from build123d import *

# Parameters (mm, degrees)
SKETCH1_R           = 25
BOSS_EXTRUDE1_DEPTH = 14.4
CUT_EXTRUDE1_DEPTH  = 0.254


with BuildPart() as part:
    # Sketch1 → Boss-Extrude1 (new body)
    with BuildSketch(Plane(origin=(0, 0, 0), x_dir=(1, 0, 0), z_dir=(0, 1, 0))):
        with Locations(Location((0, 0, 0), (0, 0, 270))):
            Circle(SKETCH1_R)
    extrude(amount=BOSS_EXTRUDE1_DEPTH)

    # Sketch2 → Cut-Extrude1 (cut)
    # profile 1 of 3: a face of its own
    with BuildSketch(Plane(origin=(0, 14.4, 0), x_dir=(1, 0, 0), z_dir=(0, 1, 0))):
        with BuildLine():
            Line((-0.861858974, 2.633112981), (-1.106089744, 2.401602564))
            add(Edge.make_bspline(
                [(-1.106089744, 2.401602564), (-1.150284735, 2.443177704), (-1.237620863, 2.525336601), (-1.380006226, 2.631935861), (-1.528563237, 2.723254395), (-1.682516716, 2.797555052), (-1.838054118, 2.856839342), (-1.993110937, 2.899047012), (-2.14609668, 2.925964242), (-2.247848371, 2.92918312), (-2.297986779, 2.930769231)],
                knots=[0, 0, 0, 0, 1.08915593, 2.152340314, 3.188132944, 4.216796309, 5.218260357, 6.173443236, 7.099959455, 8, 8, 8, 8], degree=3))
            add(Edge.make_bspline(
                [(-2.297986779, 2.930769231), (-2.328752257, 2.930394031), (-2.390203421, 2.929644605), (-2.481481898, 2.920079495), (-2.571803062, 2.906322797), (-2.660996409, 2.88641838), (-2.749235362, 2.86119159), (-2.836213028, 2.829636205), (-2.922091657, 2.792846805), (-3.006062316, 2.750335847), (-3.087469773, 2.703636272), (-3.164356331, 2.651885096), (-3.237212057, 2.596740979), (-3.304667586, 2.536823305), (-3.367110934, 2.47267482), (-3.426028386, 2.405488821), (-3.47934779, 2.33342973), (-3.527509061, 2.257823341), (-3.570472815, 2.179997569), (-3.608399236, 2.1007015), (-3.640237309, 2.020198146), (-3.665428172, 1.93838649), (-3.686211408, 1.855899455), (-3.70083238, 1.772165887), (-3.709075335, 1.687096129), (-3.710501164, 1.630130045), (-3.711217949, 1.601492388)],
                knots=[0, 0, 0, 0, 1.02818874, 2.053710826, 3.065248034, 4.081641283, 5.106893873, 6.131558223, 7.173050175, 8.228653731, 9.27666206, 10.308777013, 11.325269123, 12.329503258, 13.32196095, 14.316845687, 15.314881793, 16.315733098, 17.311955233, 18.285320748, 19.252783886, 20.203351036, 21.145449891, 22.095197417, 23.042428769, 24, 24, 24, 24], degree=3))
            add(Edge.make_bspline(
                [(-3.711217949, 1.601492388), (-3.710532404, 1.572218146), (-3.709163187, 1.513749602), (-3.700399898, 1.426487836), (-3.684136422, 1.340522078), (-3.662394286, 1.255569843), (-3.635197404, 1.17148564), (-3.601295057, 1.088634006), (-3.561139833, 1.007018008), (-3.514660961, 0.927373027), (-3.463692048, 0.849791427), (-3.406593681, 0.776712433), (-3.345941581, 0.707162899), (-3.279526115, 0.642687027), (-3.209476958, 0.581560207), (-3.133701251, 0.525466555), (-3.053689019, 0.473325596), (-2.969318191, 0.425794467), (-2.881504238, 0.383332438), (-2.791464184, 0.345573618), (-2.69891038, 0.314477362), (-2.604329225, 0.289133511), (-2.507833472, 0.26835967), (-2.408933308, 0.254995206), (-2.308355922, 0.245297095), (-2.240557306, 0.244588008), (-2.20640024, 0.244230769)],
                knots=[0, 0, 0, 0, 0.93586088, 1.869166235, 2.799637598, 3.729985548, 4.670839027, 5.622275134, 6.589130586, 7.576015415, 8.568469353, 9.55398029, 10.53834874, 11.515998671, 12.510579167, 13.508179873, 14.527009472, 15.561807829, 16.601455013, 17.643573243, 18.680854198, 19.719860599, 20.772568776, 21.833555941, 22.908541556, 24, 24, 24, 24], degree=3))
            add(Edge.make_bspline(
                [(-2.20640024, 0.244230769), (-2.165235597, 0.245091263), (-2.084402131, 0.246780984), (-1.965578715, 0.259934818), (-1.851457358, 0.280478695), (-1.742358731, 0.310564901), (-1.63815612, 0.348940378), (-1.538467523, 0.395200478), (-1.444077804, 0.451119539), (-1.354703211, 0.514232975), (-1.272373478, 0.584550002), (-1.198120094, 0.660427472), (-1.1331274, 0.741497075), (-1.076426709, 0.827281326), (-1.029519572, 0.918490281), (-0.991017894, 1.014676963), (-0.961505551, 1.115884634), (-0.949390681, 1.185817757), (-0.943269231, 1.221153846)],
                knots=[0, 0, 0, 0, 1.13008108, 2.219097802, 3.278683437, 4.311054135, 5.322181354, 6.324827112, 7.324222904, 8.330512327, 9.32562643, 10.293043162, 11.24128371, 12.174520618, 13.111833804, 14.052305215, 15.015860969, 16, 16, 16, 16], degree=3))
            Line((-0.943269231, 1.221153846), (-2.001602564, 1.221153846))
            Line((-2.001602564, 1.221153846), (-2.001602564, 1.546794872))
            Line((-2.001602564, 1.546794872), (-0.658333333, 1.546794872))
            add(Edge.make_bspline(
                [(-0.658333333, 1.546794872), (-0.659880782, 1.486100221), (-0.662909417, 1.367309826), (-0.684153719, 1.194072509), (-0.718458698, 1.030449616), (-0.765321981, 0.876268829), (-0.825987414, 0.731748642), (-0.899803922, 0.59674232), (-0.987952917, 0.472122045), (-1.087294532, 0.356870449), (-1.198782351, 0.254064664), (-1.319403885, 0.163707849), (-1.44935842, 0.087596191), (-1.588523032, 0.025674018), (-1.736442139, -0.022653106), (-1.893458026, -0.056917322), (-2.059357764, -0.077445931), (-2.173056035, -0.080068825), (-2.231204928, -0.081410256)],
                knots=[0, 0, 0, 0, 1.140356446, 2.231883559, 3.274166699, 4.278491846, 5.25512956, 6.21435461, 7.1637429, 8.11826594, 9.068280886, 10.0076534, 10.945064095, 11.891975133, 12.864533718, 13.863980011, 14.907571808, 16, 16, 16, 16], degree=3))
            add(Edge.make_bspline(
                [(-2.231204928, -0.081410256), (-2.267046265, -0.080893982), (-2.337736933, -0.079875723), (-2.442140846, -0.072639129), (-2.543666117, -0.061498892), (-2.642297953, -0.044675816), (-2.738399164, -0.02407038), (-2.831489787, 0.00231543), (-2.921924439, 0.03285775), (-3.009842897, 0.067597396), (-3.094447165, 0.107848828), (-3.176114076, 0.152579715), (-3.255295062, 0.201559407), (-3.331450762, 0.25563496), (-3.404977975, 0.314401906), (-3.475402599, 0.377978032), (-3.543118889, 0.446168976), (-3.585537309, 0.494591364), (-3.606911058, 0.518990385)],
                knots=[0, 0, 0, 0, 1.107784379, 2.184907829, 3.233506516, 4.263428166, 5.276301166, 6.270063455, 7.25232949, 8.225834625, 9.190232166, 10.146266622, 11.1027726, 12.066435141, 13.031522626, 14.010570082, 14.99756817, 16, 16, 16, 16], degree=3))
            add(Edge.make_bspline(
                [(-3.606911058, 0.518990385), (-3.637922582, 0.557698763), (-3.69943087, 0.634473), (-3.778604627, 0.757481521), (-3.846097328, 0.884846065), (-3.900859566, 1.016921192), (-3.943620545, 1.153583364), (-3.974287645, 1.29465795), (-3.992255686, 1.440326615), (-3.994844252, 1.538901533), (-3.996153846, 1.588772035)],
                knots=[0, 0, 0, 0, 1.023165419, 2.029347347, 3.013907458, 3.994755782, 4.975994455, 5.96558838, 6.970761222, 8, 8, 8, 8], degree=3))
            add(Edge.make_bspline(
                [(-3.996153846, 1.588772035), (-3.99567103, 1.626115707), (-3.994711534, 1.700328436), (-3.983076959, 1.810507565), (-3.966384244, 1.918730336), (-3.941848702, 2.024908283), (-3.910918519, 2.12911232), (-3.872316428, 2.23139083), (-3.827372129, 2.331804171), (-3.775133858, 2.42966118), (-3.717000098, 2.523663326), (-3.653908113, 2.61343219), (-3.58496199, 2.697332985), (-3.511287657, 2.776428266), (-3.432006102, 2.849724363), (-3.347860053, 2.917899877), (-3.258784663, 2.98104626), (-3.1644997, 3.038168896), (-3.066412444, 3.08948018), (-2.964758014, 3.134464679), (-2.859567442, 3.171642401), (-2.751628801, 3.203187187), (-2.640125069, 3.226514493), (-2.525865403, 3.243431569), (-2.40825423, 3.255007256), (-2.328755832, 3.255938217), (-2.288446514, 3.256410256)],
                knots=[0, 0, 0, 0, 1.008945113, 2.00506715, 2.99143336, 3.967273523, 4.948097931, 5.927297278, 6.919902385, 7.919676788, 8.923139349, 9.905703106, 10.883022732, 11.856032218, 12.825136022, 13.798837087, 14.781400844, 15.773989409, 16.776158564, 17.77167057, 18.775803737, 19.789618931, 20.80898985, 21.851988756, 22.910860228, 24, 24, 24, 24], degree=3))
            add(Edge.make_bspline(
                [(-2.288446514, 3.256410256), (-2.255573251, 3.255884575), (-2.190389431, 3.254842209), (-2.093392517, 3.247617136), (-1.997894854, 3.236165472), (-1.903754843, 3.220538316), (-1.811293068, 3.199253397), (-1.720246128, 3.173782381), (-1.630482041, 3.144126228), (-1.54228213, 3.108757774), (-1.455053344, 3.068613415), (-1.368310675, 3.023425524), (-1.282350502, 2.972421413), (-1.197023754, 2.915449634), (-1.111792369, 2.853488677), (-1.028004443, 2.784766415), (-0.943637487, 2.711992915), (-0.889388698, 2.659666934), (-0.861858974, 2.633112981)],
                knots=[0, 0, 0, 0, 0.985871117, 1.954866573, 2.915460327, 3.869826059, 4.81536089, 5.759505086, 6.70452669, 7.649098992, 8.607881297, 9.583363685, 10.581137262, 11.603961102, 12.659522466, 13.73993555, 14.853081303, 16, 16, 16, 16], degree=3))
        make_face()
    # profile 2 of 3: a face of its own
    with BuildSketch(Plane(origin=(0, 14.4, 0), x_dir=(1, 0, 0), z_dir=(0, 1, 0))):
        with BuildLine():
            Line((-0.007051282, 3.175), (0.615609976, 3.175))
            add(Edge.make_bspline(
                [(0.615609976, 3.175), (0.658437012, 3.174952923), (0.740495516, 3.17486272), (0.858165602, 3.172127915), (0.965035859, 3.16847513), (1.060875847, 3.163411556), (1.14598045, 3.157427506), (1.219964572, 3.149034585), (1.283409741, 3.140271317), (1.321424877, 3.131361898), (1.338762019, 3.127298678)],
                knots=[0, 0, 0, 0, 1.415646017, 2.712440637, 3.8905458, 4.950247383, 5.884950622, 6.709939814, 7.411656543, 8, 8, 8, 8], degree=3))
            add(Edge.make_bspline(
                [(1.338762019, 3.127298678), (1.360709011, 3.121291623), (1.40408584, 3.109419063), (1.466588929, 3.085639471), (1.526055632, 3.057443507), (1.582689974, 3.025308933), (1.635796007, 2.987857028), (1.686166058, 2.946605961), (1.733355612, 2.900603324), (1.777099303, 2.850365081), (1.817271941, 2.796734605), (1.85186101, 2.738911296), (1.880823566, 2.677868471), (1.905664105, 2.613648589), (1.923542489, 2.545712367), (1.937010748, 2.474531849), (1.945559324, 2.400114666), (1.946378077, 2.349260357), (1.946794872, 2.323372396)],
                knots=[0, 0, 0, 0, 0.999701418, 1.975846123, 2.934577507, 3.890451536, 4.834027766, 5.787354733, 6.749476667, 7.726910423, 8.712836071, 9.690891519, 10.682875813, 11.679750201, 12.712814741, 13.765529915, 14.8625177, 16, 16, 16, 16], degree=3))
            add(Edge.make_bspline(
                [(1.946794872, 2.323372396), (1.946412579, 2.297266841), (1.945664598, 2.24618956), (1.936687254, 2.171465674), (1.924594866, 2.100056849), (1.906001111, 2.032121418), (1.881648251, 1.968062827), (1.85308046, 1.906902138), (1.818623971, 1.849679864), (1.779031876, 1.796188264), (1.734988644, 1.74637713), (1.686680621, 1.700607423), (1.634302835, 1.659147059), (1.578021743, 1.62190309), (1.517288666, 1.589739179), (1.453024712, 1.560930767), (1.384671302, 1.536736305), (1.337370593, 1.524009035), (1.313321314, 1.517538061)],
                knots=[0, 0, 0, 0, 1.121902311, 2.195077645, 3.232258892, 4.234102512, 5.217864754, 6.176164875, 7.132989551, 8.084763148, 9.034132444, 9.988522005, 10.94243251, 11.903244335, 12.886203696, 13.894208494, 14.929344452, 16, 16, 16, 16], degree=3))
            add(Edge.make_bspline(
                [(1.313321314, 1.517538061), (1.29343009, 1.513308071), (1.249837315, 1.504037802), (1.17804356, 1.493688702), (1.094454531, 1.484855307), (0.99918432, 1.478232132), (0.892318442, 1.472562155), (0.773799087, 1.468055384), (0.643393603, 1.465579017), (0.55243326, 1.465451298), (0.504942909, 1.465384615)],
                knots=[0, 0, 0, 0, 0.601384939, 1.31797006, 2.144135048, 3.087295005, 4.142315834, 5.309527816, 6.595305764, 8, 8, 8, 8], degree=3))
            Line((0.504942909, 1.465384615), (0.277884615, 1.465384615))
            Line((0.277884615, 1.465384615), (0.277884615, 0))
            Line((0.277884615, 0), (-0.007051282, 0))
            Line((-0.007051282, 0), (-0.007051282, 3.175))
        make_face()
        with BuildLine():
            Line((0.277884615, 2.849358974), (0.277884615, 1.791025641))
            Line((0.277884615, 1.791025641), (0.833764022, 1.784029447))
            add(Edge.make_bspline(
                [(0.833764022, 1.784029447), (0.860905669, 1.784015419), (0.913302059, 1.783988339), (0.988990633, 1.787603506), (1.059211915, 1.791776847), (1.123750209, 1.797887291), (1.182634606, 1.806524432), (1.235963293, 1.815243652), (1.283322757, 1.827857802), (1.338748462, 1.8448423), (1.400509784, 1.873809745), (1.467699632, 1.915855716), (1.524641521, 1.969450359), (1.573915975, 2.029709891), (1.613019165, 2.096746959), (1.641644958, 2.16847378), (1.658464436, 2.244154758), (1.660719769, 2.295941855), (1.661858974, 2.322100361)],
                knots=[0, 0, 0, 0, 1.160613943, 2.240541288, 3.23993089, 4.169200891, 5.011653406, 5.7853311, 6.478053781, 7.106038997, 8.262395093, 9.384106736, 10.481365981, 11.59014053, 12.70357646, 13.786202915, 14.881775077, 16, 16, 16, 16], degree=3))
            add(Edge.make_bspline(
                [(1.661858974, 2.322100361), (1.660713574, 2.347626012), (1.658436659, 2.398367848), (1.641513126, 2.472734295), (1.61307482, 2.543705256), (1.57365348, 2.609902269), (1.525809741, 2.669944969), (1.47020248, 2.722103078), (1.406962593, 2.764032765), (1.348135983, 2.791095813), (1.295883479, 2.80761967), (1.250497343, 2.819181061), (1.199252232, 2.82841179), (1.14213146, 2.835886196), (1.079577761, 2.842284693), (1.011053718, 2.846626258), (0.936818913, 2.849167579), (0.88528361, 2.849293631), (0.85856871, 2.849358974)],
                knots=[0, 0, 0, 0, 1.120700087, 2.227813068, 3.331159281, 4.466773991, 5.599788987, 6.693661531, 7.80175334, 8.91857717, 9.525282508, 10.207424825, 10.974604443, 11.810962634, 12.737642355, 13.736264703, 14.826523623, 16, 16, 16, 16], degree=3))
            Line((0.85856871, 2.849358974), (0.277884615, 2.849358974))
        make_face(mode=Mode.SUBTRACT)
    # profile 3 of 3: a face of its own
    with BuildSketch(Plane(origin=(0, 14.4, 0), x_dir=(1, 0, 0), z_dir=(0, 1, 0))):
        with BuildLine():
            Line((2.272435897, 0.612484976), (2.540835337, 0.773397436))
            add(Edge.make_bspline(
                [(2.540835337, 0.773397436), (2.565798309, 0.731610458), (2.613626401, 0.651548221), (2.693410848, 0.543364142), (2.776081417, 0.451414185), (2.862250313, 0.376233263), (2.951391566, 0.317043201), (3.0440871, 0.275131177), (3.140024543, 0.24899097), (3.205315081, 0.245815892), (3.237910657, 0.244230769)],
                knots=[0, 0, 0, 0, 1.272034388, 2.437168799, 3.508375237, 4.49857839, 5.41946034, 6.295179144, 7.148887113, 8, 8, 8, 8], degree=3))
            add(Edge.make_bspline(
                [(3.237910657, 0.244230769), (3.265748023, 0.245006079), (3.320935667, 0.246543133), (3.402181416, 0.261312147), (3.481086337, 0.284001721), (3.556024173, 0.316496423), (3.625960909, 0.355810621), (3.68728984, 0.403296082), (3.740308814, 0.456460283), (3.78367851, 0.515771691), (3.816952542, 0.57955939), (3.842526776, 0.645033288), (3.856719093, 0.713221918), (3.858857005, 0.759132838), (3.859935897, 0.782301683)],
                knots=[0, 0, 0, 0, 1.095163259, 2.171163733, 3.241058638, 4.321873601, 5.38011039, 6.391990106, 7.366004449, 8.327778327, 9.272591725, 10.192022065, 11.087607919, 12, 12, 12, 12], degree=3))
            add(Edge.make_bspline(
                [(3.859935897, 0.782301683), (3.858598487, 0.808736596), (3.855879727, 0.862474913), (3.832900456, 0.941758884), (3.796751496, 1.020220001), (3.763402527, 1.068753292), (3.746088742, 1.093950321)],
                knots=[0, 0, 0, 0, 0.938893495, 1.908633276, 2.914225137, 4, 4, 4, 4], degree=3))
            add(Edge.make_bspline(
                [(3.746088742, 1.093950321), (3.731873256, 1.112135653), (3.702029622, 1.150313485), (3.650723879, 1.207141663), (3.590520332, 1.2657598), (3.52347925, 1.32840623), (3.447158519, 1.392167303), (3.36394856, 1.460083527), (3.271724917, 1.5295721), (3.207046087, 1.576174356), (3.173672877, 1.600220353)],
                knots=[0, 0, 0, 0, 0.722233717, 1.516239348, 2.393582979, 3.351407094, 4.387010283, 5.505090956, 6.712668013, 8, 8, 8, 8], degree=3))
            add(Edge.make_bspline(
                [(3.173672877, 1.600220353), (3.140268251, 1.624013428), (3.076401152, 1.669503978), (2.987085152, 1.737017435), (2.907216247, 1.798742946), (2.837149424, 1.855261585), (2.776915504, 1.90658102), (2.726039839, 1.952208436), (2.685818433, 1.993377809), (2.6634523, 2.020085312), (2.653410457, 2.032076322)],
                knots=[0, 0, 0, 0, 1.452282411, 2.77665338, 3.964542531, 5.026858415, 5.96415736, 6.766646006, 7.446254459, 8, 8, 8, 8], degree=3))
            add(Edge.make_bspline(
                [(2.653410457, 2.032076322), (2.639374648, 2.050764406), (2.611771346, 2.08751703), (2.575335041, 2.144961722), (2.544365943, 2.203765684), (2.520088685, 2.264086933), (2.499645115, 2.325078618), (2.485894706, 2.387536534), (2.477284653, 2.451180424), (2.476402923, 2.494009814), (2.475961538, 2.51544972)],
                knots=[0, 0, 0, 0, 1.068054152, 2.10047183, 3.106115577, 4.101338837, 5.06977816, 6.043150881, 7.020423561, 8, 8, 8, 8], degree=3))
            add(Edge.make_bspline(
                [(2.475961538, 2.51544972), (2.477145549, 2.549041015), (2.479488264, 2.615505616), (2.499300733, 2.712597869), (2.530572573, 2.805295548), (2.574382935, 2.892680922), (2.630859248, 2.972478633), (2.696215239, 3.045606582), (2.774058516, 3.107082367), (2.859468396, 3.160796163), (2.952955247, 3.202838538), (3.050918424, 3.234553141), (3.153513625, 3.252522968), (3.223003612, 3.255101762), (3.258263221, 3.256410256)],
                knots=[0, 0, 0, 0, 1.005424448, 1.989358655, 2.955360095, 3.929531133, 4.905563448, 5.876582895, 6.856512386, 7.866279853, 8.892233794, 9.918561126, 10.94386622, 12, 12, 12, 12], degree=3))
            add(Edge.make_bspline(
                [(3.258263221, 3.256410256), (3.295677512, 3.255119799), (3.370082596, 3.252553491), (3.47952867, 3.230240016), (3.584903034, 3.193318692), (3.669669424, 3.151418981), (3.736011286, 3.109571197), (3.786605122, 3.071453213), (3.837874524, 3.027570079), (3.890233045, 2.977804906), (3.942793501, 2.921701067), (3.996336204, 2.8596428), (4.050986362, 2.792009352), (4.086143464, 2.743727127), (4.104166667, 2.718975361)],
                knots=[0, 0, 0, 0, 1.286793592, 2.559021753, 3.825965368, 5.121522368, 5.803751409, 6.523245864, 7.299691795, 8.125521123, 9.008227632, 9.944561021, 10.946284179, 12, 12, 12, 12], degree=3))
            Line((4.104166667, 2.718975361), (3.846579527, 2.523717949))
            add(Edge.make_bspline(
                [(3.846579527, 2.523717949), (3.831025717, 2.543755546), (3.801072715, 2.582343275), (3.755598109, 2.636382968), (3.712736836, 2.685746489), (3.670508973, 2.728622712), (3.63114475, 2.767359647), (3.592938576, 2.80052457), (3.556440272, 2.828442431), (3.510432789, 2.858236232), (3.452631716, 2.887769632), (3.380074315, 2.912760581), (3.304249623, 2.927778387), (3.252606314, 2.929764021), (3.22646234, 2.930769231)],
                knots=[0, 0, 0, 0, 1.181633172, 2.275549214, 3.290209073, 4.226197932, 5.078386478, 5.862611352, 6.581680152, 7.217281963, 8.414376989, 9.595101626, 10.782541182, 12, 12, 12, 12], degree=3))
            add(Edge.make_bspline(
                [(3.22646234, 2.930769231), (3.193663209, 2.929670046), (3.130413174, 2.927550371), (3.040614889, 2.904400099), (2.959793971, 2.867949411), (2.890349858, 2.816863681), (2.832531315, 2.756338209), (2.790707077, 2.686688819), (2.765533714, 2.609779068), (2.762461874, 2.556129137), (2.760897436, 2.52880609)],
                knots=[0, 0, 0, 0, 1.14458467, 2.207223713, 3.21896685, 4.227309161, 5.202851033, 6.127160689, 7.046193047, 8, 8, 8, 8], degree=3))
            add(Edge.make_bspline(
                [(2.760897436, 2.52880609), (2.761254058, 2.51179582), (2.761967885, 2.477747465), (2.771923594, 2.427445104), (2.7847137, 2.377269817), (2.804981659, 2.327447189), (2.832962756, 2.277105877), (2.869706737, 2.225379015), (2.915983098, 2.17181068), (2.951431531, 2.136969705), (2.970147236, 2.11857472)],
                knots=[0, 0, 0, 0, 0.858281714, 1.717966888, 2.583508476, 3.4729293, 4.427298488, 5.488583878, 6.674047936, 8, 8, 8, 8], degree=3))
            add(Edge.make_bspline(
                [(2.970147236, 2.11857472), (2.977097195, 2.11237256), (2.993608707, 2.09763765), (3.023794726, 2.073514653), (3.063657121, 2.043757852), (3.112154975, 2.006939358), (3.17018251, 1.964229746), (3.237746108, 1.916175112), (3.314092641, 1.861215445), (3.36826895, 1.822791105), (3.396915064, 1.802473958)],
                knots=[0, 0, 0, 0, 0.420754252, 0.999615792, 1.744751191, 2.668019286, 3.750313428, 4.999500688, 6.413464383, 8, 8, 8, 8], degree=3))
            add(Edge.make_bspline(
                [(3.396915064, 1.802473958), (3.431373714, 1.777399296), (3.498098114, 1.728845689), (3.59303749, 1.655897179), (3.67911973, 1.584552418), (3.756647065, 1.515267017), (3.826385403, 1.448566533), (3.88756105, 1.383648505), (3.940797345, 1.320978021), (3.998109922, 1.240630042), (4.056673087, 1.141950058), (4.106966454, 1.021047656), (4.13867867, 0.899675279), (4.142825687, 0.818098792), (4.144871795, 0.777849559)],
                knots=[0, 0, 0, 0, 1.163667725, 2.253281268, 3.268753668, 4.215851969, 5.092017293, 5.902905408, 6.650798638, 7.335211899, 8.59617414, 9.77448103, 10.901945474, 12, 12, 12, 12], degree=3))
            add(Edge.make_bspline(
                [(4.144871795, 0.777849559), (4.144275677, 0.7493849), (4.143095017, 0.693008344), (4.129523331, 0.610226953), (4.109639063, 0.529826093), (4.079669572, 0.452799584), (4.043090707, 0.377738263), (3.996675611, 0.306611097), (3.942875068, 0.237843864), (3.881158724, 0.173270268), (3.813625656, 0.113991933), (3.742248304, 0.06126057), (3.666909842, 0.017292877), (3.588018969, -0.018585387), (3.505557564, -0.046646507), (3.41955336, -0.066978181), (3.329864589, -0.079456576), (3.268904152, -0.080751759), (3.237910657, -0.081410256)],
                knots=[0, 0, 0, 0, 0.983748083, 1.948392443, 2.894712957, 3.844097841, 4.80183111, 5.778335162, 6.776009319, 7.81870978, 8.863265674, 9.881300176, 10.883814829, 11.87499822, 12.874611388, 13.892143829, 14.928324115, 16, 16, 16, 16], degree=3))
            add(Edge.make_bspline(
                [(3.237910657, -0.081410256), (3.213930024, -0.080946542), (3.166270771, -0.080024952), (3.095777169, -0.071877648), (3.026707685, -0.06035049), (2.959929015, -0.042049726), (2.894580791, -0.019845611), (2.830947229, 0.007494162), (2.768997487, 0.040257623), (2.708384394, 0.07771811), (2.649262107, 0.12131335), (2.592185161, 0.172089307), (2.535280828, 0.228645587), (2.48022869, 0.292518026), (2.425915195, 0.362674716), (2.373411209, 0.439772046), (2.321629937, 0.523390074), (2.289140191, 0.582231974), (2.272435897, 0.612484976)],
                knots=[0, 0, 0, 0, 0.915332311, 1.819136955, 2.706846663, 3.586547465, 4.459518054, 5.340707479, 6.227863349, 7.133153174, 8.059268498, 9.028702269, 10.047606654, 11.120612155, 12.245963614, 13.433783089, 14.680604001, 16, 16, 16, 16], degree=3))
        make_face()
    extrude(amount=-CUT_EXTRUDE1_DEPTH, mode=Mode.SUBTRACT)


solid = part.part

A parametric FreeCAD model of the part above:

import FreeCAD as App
import Part
import Sketcher

doc = App.newDocument("Part")
body = doc.addObject("PartDesign::Body", "Body")

sketch1 = body.newObject("Sketcher::SketchObject", "Sketch")
sketch1.AttachmentSupport = (doc.getObject("XZ_Plane"), [""])
sketch1.MapMode = "FlatFace"
sketch1.addGeometry(Part.Circle(App.Vector(0, 0, 0), App.Vector(0, 0, 1), 25), False)
sketch1.addConstraint([
    Sketcher.Constraint("Coincident", 0, 3, -1, 1),
    Sketcher.Constraint("Diameter", 0, 50.0),
])
pad1 = body.newObject("PartDesign::Pad", "Pad")
pad1.Profile = sketch1
pad1.Length = 14.4
pad1.Reversed = True

sketch2 = body.newObject("Sketcher::SketchObject", "Sketch001")
sketch2.AttachmentSupport = (doc.getObject("XZ_Plane"), [""])
sketch2.MapMode = "FlatFace"
sketch2.AttachmentOffset = App.Placement(App.Vector(0, 0, -14.4), App.Rotation())
sketch2.addGeometry([
    Part.LineSegment(App.Vector(-1.10609, -2.401603, 0), App.Vector(-0.861859, -2.633113, 0)),
    Part.BSplineCurve([App.Vector(-2.288447, -3.25641, 0), App.Vector(-2.255573, -3.255885, 0), App.Vector(-2.190389, -3.254842, 0), App.Vector(-2.093393, -3.247617, 0), App.Vector(-1.997895, -3.236165, 0), App.Vector(-1.903755, -3.220538, 0), App.Vector(-1.811293, -3.199253, 0), App.Vector(-1.720246, -3.173782, 0), App.Vector(-1.630482, -3.144126, 0), App.Vector(-1.542282, -3.108758, 0), App.Vector(-1.455053, -3.068613, 0), App.Vector(-1.368311, -3.023426, 0), App.Vector(-1.282351, -2.972421, 0), App.Vector(-1.197024, -2.91545, 0), App.Vector(-1.111792, -2.853489, 0), App.Vector(-1.028004, -2.784766, 0), App.Vector(-0.943637, -2.711993, 0), App.Vector(-0.889389, -2.659667, 0), App.Vector(-0.861859, -2.633113, 0)], [4, 1, 1, 1, 1, 1, 1, 1, 1, 1, 1, 1, 1, 1, 1, 1, 4], [0, 0.985871117, 1.954866573, 2.915460327, 3.869826059, 4.81536089, 5.759505086, 6.70452669, 7.649098992, 8.607881297, 9.583363685, 10.581137262, 11.603961102, 12.659522466, 13.73993555, 14.853081303, 16], False, 3, [1, 1, 1, 1, 1, 1, 1, 1, 1, 1, 1, 1, 1, 1, 1, 1, 1, 1, 1], False),
    Part.BSplineCurve([App.Vector(-3.996154, -1.588772, 0), App.Vector(-3.995671, -1.626116, 0), App.Vector(-3.994712, -1.700328, 0), App.Vector(-3.983077, -1.810508, 0), App.Vector(-3.966384, -1.91873, 0), App.Vector(-3.941849, -2.024908, 0), App.Vector(-3.910919, -2.129112, 0), App.Vector(-3.872316, -2.231391, 0), App.Vector(-3.827372, -2.331804, 0), App.Vector(-3.775134, -2.429661, 0), App.Vector(-3.717, -2.523663, 0), App.Vector(-3.653908, -2.613432, 0), App.Vector(-3.584962, -2.697333, 0), App.Vector(-3.511288, -2.776428, 0), App.Vector(-3.432006, -2.849724, 0), App.Vector(-3.34786, -2.9179, 0), App.Vector(-3.258785, -2.981046, 0), App.Vector(-3.1645, -3.038169, 0), App.Vector(-3.066412, -3.08948, 0), App.Vector(-2.964758, -3.134465, 0), App.Vector(-2.859567, -3.171642, 0), App.Vector(-2.751629, -3.203187, 0), App.Vector(-2.640125, -3.226514, 0), App.Vector(-2.525865, -3.243432, 0), App.Vector(-2.408254, -3.255007, 0), App.Vector(-2.328756, -3.255938, 0), App.Vector(-2.288447, -3.25641, 0)], [4, 1, 1, 1, 1, 1, 1, 1, 1, 1, 1, 1, 1, 1, 1, 1, 1, 1, 1, 1, 1, 1, 1, 1, 4], [0, 1.008945113, 2.00506715, 2.99143336, 3.967273523, 4.948097931, 5.927297278, 6.919902385, 7.919676788, 8.923139349, 9.905703106, 10.883022732, 11.856032218, 12.825136022, 13.798837087, 14.781400844, 15.773989409, 16.776158564, 17.77167057, 18.775803737, 19.789618931, 20.80898985, 21.851988756, 22.910860228, 24], False, 3, [1, 1, 1, 1, 1, 1, 1, 1, 1, 1, 1, 1, 1, 1, 1, 1, 1, 1, 1, 1, 1, 1, 1, 1, 1, 1, 1], False),
    Part.BSplineCurve([App.Vector(-3.606911, -0.51899, 0), App.Vector(-3.637923, -0.557699, 0), App.Vector(-3.699431, -0.634473, 0), App.Vector(-3.778605, -0.757482, 0), App.Vector(-3.846097, -0.884846, 0), App.Vector(-3.90086, -1.016921, 0), App.Vector(-3.943621, -1.153583, 0), App.Vector(-3.974288, -1.294658, 0), App.Vector(-3.992256, -1.440327, 0), App.Vector(-3.994844, -1.538902, 0), App.Vector(-3.996154, -1.588772, 0)], [4, 1, 1, 1, 1, 1, 1, 1, 4], [0, 1.023165419, 2.029347347, 3.013907458, 3.994755782, 4.975994455, 5.96558838, 6.970761222, 8], False, 3, [1, 1, 1, 1, 1, 1, 1, 1, 1, 1, 1], False),
    Part.BSplineCurve([App.Vector(-2.231205, 0.08141, 0), App.Vector(-2.267046, 0.080894, 0), App.Vector(-2.337737, 0.079876, 0), App.Vector(-2.442141, 0.072639, 0), App.Vector(-2.543666, 0.061499, 0), App.Vector(-2.642298, 0.044676, 0), App.Vector(-2.738399, 0.02407, 0), App.Vector(-2.83149, -0.002315, 0), App.Vector(-2.921924, -0.032858, 0), App.Vector(-3.009843, -0.067597, 0), App.Vector(-3.094447, -0.107849, 0), App.Vector(-3.176114, -0.15258, 0), App.Vector(-3.255295, -0.201559, 0), App.Vector(-3.331451, -0.255635, 0), App.Vector(-3.404978, -0.314402, 0), App.Vector(-3.475403, -0.377978, 0), App.Vector(-3.543119, -0.446169, 0), App.Vector(-3.585537, -0.494591, 0), App.Vector(-3.606911, -0.51899, 0)], [4, 1, 1, 1, 1, 1, 1, 1, 1, 1, 1, 1, 1, 1, 1, 1, 4], [0, 1.107784379, 2.184907829, 3.233506516, 4.263428166, 5.276301166, 6.270063455, 7.25232949, 8.225834625, 9.190232166, 10.146266622, 11.1027726, 12.066435141, 13.031522626, 14.010570082, 14.99756817, 16], False, 3, [1, 1, 1, 1, 1, 1, 1, 1, 1, 1, 1, 1, 1, 1, 1, 1, 1, 1, 1], False),
    Part.BSplineCurve([App.Vector(-0.658333, -1.546795, 0), App.Vector(-0.659881, -1.4861, 0), App.Vector(-0.662909, -1.36731, 0), App.Vector(-0.684154, -1.194073, 0), App.Vector(-0.718459, -1.03045, 0), App.Vector(-0.765322, -0.876269, 0), App.Vector(-0.825987, -0.731749, 0), App.Vector(-0.899804, -0.596742, 0), App.Vector(-0.987953, -0.472122, 0), App.Vector(-1.087295, -0.35687, 0), App.Vector(-1.198782, -0.254065, 0), App.Vector(-1.319404, -0.163708, 0), App.Vector(-1.449358, -0.087596, 0), App.Vector(-1.588523, -0.025674, 0), App.Vector(-1.736442, 0.022653, 0), App.Vector(-1.893458, 0.056917, 0), App.Vector(-2.059358, 0.077446, 0), App.Vector(-2.173056, 0.080069, 0), App.Vector(-2.231205, 0.08141, 0)], [4, 1, 1, 1, 1, 1, 1, 1, 1, 1, 1, 1, 1, 1, 1, 1, 4], [0, 1.140356446, 2.231883559, 3.274166699, 4.278491846, 5.25512956, 6.21435461, 7.1637429, 8.11826594, 9.068280886, 10.0076534, 10.945064095, 11.891975133, 12.864533718, 13.863980011, 14.907571808, 16], False, 3, [1, 1, 1, 1, 1, 1, 1, 1, 1, 1, 1, 1, 1, 1, 1, 1, 1, 1, 1], False),
    Part.LineSegment(App.Vector(-0.658333, -1.546795, 0), App.Vector(-2.001603, -1.546795, 0)),
    Part.LineSegment(App.Vector(-2.001603, -1.546795, 0), App.Vector(-2.001603, -1.221154, 0)),
    Part.LineSegment(App.Vector(-2.001603, -1.221154, 0), App.Vector(-0.943269, -1.221154, 0)),
    Part.BSplineCurve([App.Vector(-2.2064, -0.244231, 0), App.Vector(-2.165236, -0.245091, 0), App.Vector(-2.084402, -0.246781, 0), App.Vector(-1.965579, -0.259935, 0), App.Vector(-1.851457, -0.280479, 0), App.Vector(-1.742359, -0.310565, 0), App.Vector(-1.638156, -0.34894, 0), App.Vector(-1.538468, -0.3952, 0), App.Vector(-1.444078, -0.45112, 0), App.Vector(-1.354703, -0.514233, 0), App.Vector(-1.272373, -0.58455, 0), App.Vector(-1.19812, -0.660427, 0), App.Vector(-1.133127, -0.741497, 0), App.Vector(-1.076427, -0.827281, 0), App.Vector(-1.02952, -0.91849, 0), App.Vector(-0.991018, -1.014677, 0), App.Vector(-0.961506, -1.115885, 0), App.Vector(-0.949391, -1.185818, 0), App.Vector(-0.943269, -1.221154, 0)], [4, 1, 1, 1, 1, 1, 1, 1, 1, 1, 1, 1, 1, 1, 1, 1, 4], [0, 1.13008108, 2.219097802, 3.278683437, 4.311054135, 5.322181354, 6.324827112, 7.324222904, 8.330512327, 9.32562643, 10.293043162, 11.24128371, 12.174520618, 13.111833804, 14.052305215, 15.015860969, 16], False, 3, [1, 1, 1, 1, 1, 1, 1, 1, 1, 1, 1, 1, 1, 1, 1, 1, 1, 1, 1], False),
    Part.BSplineCurve([App.Vector(-3.711218, -1.601492, 0), App.Vector(-3.710532, -1.572218, 0), App.Vector(-3.709163, -1.51375, 0), App.Vector(-3.7004, -1.426488, 0), App.Vector(-3.684136, -1.340522, 0), App.Vector(-3.662394, -1.25557, 0), App.Vector(-3.635197, -1.171486, 0), App.Vector(-3.601295, -1.088634, 0), App.Vector(-3.56114, -1.007018, 0), App.Vector(-3.514661, -0.927373, 0), App.Vector(-3.463692, -0.849791, 0), App.Vector(-3.406594, -0.776712, 0), App.Vector(-3.345942, -0.707163, 0), App.Vector(-3.279526, -0.642687, 0), App.Vector(-3.209477, -0.58156, 0), App.Vector(-3.133701, -0.525467, 0), App.Vector(-3.053689, -0.473326, 0), App.Vector(-2.969318, -0.425794, 0), App.Vector(-2.881504, -0.383332, 0), App.Vector(-2.791464, -0.345574, 0), App.Vector(-2.69891, -0.314477, 0), App.Vector(-2.604329, -0.289134, 0), App.Vector(-2.507833, -0.26836, 0), App.Vector(-2.408933, -0.254995, 0), App.Vector(-2.308356, -0.245297, 0), App.Vector(-2.240557, -0.244588, 0), App.Vector(-2.2064, -0.244231, 0)], [4, 1, 1, 1, 1, 1, 1, 1, 1, 1, 1, 1, 1, 1, 1, 1, 1, 1, 1, 1, 1, 1, 1, 1, 4], [0, 0.93586088, 1.869166235, 2.799637598, 3.729985548, 4.670839027, 5.622275134, 6.589130586, 7.576015415, 8.568469353, 9.55398029, 10.53834874, 11.515998671, 12.510579167, 13.508179873, 14.527009472, 15.561807829, 16.601455013, 17.643573243, 18.680854198, 19.719860599, 20.772568776, 21.833555941, 22.908541556, 24], False, 3, [1, 1, 1, 1, 1, 1, 1, 1, 1, 1, 1, 1, 1, 1, 1, 1, 1, 1, 1, 1, 1, 1, 1, 1, 1, 1, 1], False),
    Part.BSplineCurve([App.Vector(-2.297987, -2.930769, 0), App.Vector(-2.328752, -2.930394, 0), App.Vector(-2.390203, -2.929645, 0), App.Vector(-2.481482, -2.920079, 0), App.Vector(-2.571803, -2.906323, 0), App.Vector(-2.660996, -2.886418, 0), App.Vector(-2.749235, -2.861192, 0), App.Vector(-2.836213, -2.829636, 0), App.Vector(-2.922092, -2.792847, 0), App.Vector(-3.006062, -2.750336, 0), App.Vector(-3.08747, -2.703636, 0), App.Vector(-3.164356, -2.651885, 0), App.Vector(-3.237212, -2.596741, 0), App.Vector(-3.304668, -2.536823, 0), App.Vector(-3.367111, -2.472675, 0), App.Vector(-3.426028, -2.405489, 0), App.Vector(-3.479348, -2.33343, 0), App.Vector(-3.527509, -2.257823, 0), App.Vector(-3.570473, -2.179998, 0), App.Vector(-3.608399, -2.100701, 0), App.Vector(-3.640237, -2.020198, 0), App.Vector(-3.665428, -1.938386, 0), App.Vector(-3.686211, -1.855899, 0), App.Vector(-3.700832, -1.772166, 0), App.Vector(-3.709075, -1.687096, 0), App.Vector(-3.710501, -1.63013, 0), App.Vector(-3.711218, -1.601492, 0)], [4, 1, 1, 1, 1, 1, 1, 1, 1, 1, 1, 1, 1, 1, 1, 1, 1, 1, 1, 1, 1, 1, 1, 1, 4], [0, 1.02818874, 2.053710826, 3.065248034, 4.081641283, 5.106893873, 6.131558223, 7.173050175, 8.228653731, 9.27666206, 10.308777013, 11.325269123, 12.329503258, 13.32196095, 14.316845687, 15.314881793, 16.315733098, 17.311955233, 18.285320748, 19.252783886, 20.203351036, 21.145449891, 22.095197417, 23.042428769, 24], False, 3, [1, 1, 1, 1, 1, 1, 1, 1, 1, 1, 1, 1, 1, 1, 1, 1, 1, 1, 1, 1, 1, 1, 1, 1, 1, 1, 1], False),
    Part.BSplineCurve([App.Vector(-1.10609, -2.401603, 0), App.Vector(-1.150285, -2.443178, 0), App.Vector(-1.237621, -2.525337, 0), App.Vector(-1.380006, -2.631936, 0), App.Vector(-1.528563, -2.723254, 0), App.Vector(-1.682517, -2.797555, 0), App.Vector(-1.838054, -2.856839, 0), App.Vector(-1.993111, -2.899047, 0), App.Vector(-2.146097, -2.925964, 0), App.Vector(-2.247848, -2.929183, 0), App.Vector(-2.297987, -2.930769, 0)], [4, 1, 1, 1, 1, 1, 1, 1, 4], [0, 1.08915593, 2.152340314, 3.188132944, 4.216796309, 5.218260357, 6.173443236, 7.099959455, 8], False, 3, [1, 1, 1, 1, 1, 1, 1, 1, 1, 1, 1], False),
    Part.LineSegment(App.Vector(0.61561, -3.175, 0), App.Vector(-0.007051, -3.175, 0)),
    Part.LineSegment(App.Vector(-0.007051, -3.175, 0), App.Vector(-0.007051, 0, 0)),
    Part.LineSegment(App.Vector(-0.007051, 0, 0), App.Vector(0.277885, 0, 0)),
    Part.LineSegment(App.Vector(0.277885, 0, 0), App.Vector(0.277885, -1.465385, 0)),
    Part.LineSegment(App.Vector(0.277885, -1.465385, 0), App.Vector(0.504943, -1.465385, 0)),
    Part.BSplineCurve([App.Vector(1.313321, -1.517538, 0), App.Vector(1.29343, -1.513308, 0), App.Vector(1.249837, -1.504038, 0), App.Vector(1.178044, -1.493689, 0), App.Vector(1.094455, -1.484855, 0), App.Vector(0.999184, -1.478232, 0), App.Vector(0.892318, -1.472562, 0), App.Vector(0.773799, -1.468055, 0), App.Vector(0.643394, -1.465579, 0), App.Vector(0.552433, -1.465451, 0), App.Vector(0.504943, -1.465385, 0)], [4, 1, 1, 1, 1, 1, 1, 1, 4], [0, 0.601384939, 1.31797006, 2.144135048, 3.087295005, 4.142315834, 5.309527816, 6.595305764, 8], False, 3, [1, 1, 1, 1, 1, 1, 1, 1, 1, 1, 1], False),
    Part.BSplineCurve([App.Vector(1.946795, -2.323372, 0), App.Vector(1.946413, -2.297267, 0), App.Vector(1.945665, -2.24619, 0), App.Vector(1.936687, -2.171466, 0), App.Vector(1.924595, -2.100057, 0), App.Vector(1.906001, -2.032121, 0), App.Vector(1.881648, -1.968063, 0), App.Vector(1.85308, -1.906902, 0), App.Vector(1.818624, -1.84968, 0), App.Vector(1.779032, -1.796188, 0), App.Vector(1.734989, -1.746377, 0), App.Vector(1.686681, -1.700607, 0), App.Vector(1.634303, -1.659147, 0), App.Vector(1.578022, -1.621903, 0), App.Vector(1.517289, -1.589739, 0), App.Vector(1.453025, -1.560931, 0), App.Vector(1.384671, -1.536736, 0), App.Vector(1.337371, -1.524009, 0), App.Vector(1.313321, -1.517538, 0)], [4, 1, 1, 1, 1, 1, 1, 1, 1, 1, 1, 1, 1, 1, 1, 1, 4], [0, 1.121902311, 2.195077645, 3.232258892, 4.234102512, 5.217864754, 6.176164875, 7.132989551, 8.084763148, 9.034132444, 9.988522005, 10.94243251, 11.903244335, 12.886203696, 13.894208494, 14.929344452, 16], False, 3, [1, 1, 1, 1, 1, 1, 1, 1, 1, 1, 1, 1, 1, 1, 1, 1, 1, 1, 1], False),
    Part.BSplineCurve([App.Vector(1.338762, -3.127299, 0), App.Vector(1.360709, -3.121292, 0), App.Vector(1.404086, -3.109419, 0), App.Vector(1.466589, -3.085639, 0), App.Vector(1.526056, -3.057444, 0), App.Vector(1.58269, -3.025309, 0), App.Vector(1.635796, -2.987857, 0), App.Vector(1.686166, -2.946606, 0), App.Vector(1.733356, -2.900603, 0), App.Vector(1.777099, -2.850365, 0), App.Vector(1.817272, -2.796735, 0), App.Vector(1.851861, -2.738911, 0), App.Vector(1.880824, -2.677868, 0), App.Vector(1.905664, -2.613649, 0), App.Vector(1.923542, -2.545712, 0), App.Vector(1.937011, -2.474532, 0), App.Vector(1.945559, -2.400115, 0), App.Vector(1.946378, -2.34926, 0), App.Vector(1.946795, -2.323372, 0)], [4, 1, 1, 1, 1, 1, 1, 1, 1, 1, 1, 1, 1, 1, 1, 1, 4], [0, 0.999701418, 1.975846123, 2.934577507, 3.890451536, 4.834027766, 5.787354733, 6.749476667, 7.726910423, 8.712836071, 9.690891519, 10.682875813, 11.679750201, 12.712814741, 13.765529915, 14.8625177, 16], False, 3, [1, 1, 1, 1, 1, 1, 1, 1, 1, 1, 1, 1, 1, 1, 1, 1, 1, 1, 1], False),
    Part.BSplineCurve([App.Vector(0.61561, -3.175, 0), App.Vector(0.658437, -3.174953, 0), App.Vector(0.740496, -3.174863, 0), App.Vector(0.858166, -3.172128, 0), App.Vector(0.965036, -3.168475, 0), App.Vector(1.060876, -3.163412, 0), App.Vector(1.14598, -3.157428, 0), App.Vector(1.219965, -3.149035, 0), App.Vector(1.28341, -3.140271, 0), App.Vector(1.321425, -3.131362, 0), App.Vector(1.338762, -3.127299, 0)], [4, 1, 1, 1, 1, 1, 1, 1, 4], [0, 1.415646017, 2.712440637, 3.8905458, 4.950247383, 5.884950622, 6.709939814, 7.411656543, 8], False, 3, [1, 1, 1, 1, 1, 1, 1, 1, 1, 1, 1], False),
    Part.LineSegment(App.Vector(0.277885, -2.849359, 0), App.Vector(0.858569, -2.849359, 0)),
    Part.BSplineCurve([App.Vector(1.661859, -2.3221, 0), App.Vector(1.660714, -2.347626, 0), App.Vector(1.658437, -2.398368, 0), App.Vector(1.641513, -2.472734, 0), App.Vector(1.613075, -2.543705, 0), App.Vector(1.573653, -2.609902, 0), App.Vector(1.52581, -2.669945, 0), App.Vector(1.470202, -2.722103, 0), App.Vector(1.406963, -2.764033, 0), App.Vector(1.348136, -2.791096, 0), App.Vector(1.295883, -2.80762, 0), App.Vector(1.250497, -2.819181, 0), App.Vector(1.199252, -2.828412, 0), App.Vector(1.142131, -2.835886, 0), App.Vector(1.079578, -2.842285, 0), App.Vector(1.011054, -2.846626, 0), App.Vector(0.936819, -2.849168, 0), App.Vector(0.885284, -2.849294, 0), App.Vector(0.858569, -2.849359, 0)], [4, 1, 1, 1, 1, 1, 1, 1, 1, 1, 1, 1, 1, 1, 1, 1, 4], [0, 1.120700087, 2.227813068, 3.331159281, 4.466773991, 5.599788987, 6.693661531, 7.80175334, 8.91857717, 9.525282508, 10.207424825, 10.974604443, 11.810962634, 12.737642355, 13.736264703, 14.826523623, 16], False, 3, [1, 1, 1, 1, 1, 1, 1, 1, 1, 1, 1, 1, 1, 1, 1, 1, 1, 1, 1], False),
    Part.BSplineCurve([App.Vector(0.833764, -1.784029, 0), App.Vector(0.860906, -1.784015, 0), App.Vector(0.913302, -1.783988, 0), App.Vector(0.988991, -1.787604, 0), App.Vector(1.059212, -1.791777, 0), App.Vector(1.12375, -1.797887, 0), App.Vector(1.182635, -1.806524, 0), App.Vector(1.235963, -1.815244, 0), App.Vector(1.283323, -1.827858, 0), App.Vector(1.338748, -1.844842, 0), App.Vector(1.40051, -1.87381, 0), App.Vector(1.4677, -1.915856, 0), App.Vector(1.524642, -1.96945, 0), App.Vector(1.573916, -2.02971, 0), App.Vector(1.613019, -2.096747, 0), App.Vector(1.641645, -2.168474, 0), App.Vector(1.658464, -2.244155, 0), App.Vector(1.66072, -2.295942, 0), App.Vector(1.661859, -2.3221, 0)], [4, 1, 1, 1, 1, 1, 1, 1, 1, 1, 1, 1, 1, 1, 1, 1, 4], [0, 1.160613943, 2.240541288, 3.23993089, 4.169200891, 5.011653406, 5.7853311, 6.478053781, 7.106038997, 8.262395093, 9.384106736, 10.481365981, 11.59014053, 12.70357646, 13.786202915, 14.881775077, 16], False, 3, [1, 1, 1, 1, 1, 1, 1, 1, 1, 1, 1, 1, 1, 1, 1, 1, 1, 1, 1], False),
    Part.LineSegment(App.Vector(0.833764, -1.784029, 0), App.Vector(0.277885, -1.791026, 0)),
    Part.LineSegment(App.Vector(0.277885, -1.791026, 0), App.Vector(0.277885, -2.849359, 0)),
    Part.LineSegment(App.Vector(2.540835, -0.773397, 0), App.Vector(2.272436, -0.612485, 0)),
    Part.BSplineCurve([App.Vector(3.237911, 0.08141, 0), App.Vector(3.21393, 0.080947, 0), App.Vector(3.166271, 0.080025, 0), App.Vector(3.095777, 0.071878, 0), App.Vector(3.026708, 0.06035, 0), App.Vector(2.959929, 0.04205, 0), App.Vector(2.894581, 0.019846, 0), App.Vector(2.830947, -0.007494, 0), App.Vector(2.768997, -0.040258, 0), App.Vector(2.708384, -0.077718, 0), App.Vector(2.649262, -0.121313, 0), App.Vector(2.592185, -0.172089, 0), App.Vector(2.535281, -0.228646, 0), App.Vector(2.480229, -0.292518, 0), App.Vector(2.425915, -0.362675, 0), App.Vector(2.373411, -0.439772, 0), App.Vector(2.32163, -0.52339, 0), App.Vector(2.28914, -0.582232, 0), App.Vector(2.272436, -0.612485, 0)], [4, 1, 1, 1, 1, 1, 1, 1, 1, 1, 1, 1, 1, 1, 1, 1, 4], [0, 0.915332311, 1.819136955, 2.706846663, 3.586547465, 4.459518054, 5.340707479, 6.227863349, 7.133153174, 8.059268498, 9.028702269, 10.047606654, 11.120612155, 12.245963614, 13.433783089, 14.680604001, 16], False, 3, [1, 1, 1, 1, 1, 1, 1, 1, 1, 1, 1, 1, 1, 1, 1, 1, 1, 1, 1], False),
    Part.BSplineCurve([App.Vector(4.144872, -0.77785, 0), App.Vector(4.144276, -0.749385, 0), App.Vector(4.143095, -0.693008, 0), App.Vector(4.129523, -0.610227, 0), App.Vector(4.109639, -0.529826, 0), App.Vector(4.07967, -0.4528, 0), App.Vector(4.043091, -0.377738, 0), App.Vector(3.996676, -0.306611, 0), App.Vector(3.942875, -0.237844, 0), App.Vector(3.881159, -0.17327, 0), App.Vector(3.813626, -0.113992, 0), App.Vector(3.742248, -0.061261, 0), App.Vector(3.66691, -0.017293, 0), App.Vector(3.588019, 0.018585, 0), App.Vector(3.505558, 0.046647, 0), App.Vector(3.419553, 0.066978, 0), App.Vector(3.329865, 0.079457, 0), App.Vector(3.268904, 0.080752, 0), App.Vector(3.237911, 0.08141, 0)], [4, 1, 1, 1, 1, 1, 1, 1, 1, 1, 1, 1, 1, 1, 1, 1, 4], [0, 0.983748083, 1.948392443, 2.894712957, 3.844097841, 4.80183111, 5.778335162, 6.776009319, 7.81870978, 8.863265674, 9.881300176, 10.883814829, 11.87499822, 12.874611388, 13.892143829, 14.928324115, 16], False, 3, [1, 1, 1, 1, 1, 1, 1, 1, 1, 1, 1, 1, 1, 1, 1, 1, 1, 1, 1], False),
    Part.BSplineCurve([App.Vector(3.396915, -1.802474, 0), App.Vector(3.431374, -1.777399, 0), App.Vector(3.498098, -1.728846, 0), App.Vector(3.593037, -1.655897, 0), App.Vector(3.67912, -1.584552, 0), App.Vector(3.756647, -1.515267, 0), App.Vector(3.826385, -1.448567, 0), App.Vector(3.887561, -1.383649, 0), App.Vector(3.940797, -1.320978, 0), App.Vector(3.99811, -1.24063, 0), App.Vector(4.056673, -1.14195, 0), App.Vector(4.106966, -1.021048, 0), App.Vector(4.138679, -0.899675, 0), App.Vector(4.142826, -0.818099, 0), App.Vector(4.144872, -0.77785, 0)], [4, 1, 1, 1, 1, 1, 1, 1, 1, 1, 1, 1, 4], [0, 1.163667725, 2.253281268, 3.268753668, 4.215851969, 5.092017293, 5.902905408, 6.650798638, 7.335211899, 8.59617414, 9.77448103, 10.901945474, 12], False, 3, [1, 1, 1, 1, 1, 1, 1, 1, 1, 1, 1, 1, 1, 1, 1], False),
    Part.BSplineCurve([App.Vector(2.970147, -2.118575, 0), App.Vector(2.977097, -2.112373, 0), App.Vector(2.993609, -2.097638, 0), App.Vector(3.023795, -2.073515, 0), App.Vector(3.063657, -2.043758, 0), App.Vector(3.112155, -2.006939, 0), App.Vector(3.170183, -1.96423, 0), App.Vector(3.237746, -1.916175, 0), App.Vector(3.314093, -1.861215, 0), App.Vector(3.368269, -1.822791, 0), App.Vector(3.396915, -1.802474, 0)], [4, 1, 1, 1, 1, 1, 1, 1, 4], [0, 0.420754252, 0.999615792, 1.744751191, 2.668019286, 3.750313428, 4.999500688, 6.413464383, 8], False, 3, [1, 1, 1, 1, 1, 1, 1, 1, 1, 1, 1], False),
    Part.BSplineCurve([App.Vector(2.760897, -2.528806, 0), App.Vector(2.761254, -2.511796, 0), App.Vector(2.761968, -2.477747, 0), App.Vector(2.771924, -2.427445, 0), App.Vector(2.784714, -2.37727, 0), App.Vector(2.804982, -2.327447, 0), App.Vector(2.832963, -2.277106, 0), App.Vector(2.869707, -2.225379, 0), App.Vector(2.915983, -2.171811, 0), App.Vector(2.951432, -2.13697, 0), App.Vector(2.970147, -2.118575, 0)], [4, 1, 1, 1, 1, 1, 1, 1, 4], [0, 0.858281714, 1.717966888, 2.583508476, 3.4729293, 4.427298488, 5.488583878, 6.674047936, 8], False, 3, [1, 1, 1, 1, 1, 1, 1, 1, 1, 1, 1], False),
    Part.BSplineCurve([App.Vector(3.226462, -2.930769, 0), App.Vector(3.193663, -2.92967, 0), App.Vector(3.130413, -2.92755, 0), App.Vector(3.040615, -2.9044, 0), App.Vector(2.959794, -2.867949, 0), App.Vector(2.89035, -2.816864, 0), App.Vector(2.832531, -2.756338, 0), App.Vector(2.790707, -2.686689, 0), App.Vector(2.765534, -2.609779, 0), App.Vector(2.762462, -2.556129, 0), App.Vector(2.760897, -2.528806, 0)], [4, 1, 1, 1, 1, 1, 1, 1, 4], [0, 1.14458467, 2.207223713, 3.21896685, 4.227309161, 5.202851033, 6.127160689, 7.046193047, 8], False, 3, [1, 1, 1, 1, 1, 1, 1, 1, 1, 1, 1], False),
    Part.BSplineCurve([App.Vector(3.84658, -2.523718, 0), App.Vector(3.831026, -2.543756, 0), App.Vector(3.801073, -2.582343, 0), App.Vector(3.755598, -2.636383, 0), App.Vector(3.712737, -2.685746, 0), App.Vector(3.670509, -2.728623, 0), App.Vector(3.631145, -2.76736, 0), App.Vector(3.592939, -2.800525, 0), App.Vector(3.55644, -2.828442, 0), App.Vector(3.510433, -2.858236, 0), App.Vector(3.452632, -2.88777, 0), App.Vector(3.380074, -2.912761, 0), App.Vector(3.30425, -2.927778, 0), App.Vector(3.252606, -2.929764, 0), App.Vector(3.226462, -2.930769, 0)], [4, 1, 1, 1, 1, 1, 1, 1, 1, 1, 1, 1, 4], [0, 1.181633172, 2.275549214, 3.290209073, 4.226197932, 5.078386478, 5.862611352, 6.581680152, 7.217281963, 8.414376989, 9.595101626, 10.782541182, 12], False, 3, [1, 1, 1, 1, 1, 1, 1, 1, 1, 1, 1, 1, 1, 1, 1], False),
    Part.LineSegment(App.Vector(3.84658, -2.523718, 0), App.Vector(4.104167, -2.718975, 0)),
    Part.BSplineCurve([App.Vector(3.258263, -3.25641, 0), App.Vector(3.295678, -3.25512, 0), App.Vector(3.370083, -3.252553, 0), App.Vector(3.479529, -3.23024, 0), App.Vector(3.584903, -3.193319, 0), App.Vector(3.669669, -3.151419, 0), App.Vector(3.736011, -3.109571, 0), App.Vector(3.786605, -3.071453, 0), App.Vector(3.837875, -3.02757, 0), App.Vector(3.890233, -2.977805, 0), App.Vector(3.942794, -2.921701, 0), App.Vector(3.996336, -2.859643, 0), App.Vector(4.050986, -2.792009, 0), App.Vector(4.086143, -2.743727, 0), App.Vector(4.104167, -2.718975, 0)], [4, 1, 1, 1, 1, 1, 1, 1, 1, 1, 1, 1, 4], [0, 1.286793592, 2.559021753, 3.825965368, 5.121522368, 5.803751409, 6.523245864, 7.299691795, 8.125521123, 9.008227632, 9.944561021, 10.946284179, 12], False, 3, [1, 1, 1, 1, 1, 1, 1, 1, 1, 1, 1, 1, 1, 1, 1], False),
    Part.BSplineCurve([App.Vector(2.475962, -2.51545, 0), App.Vector(2.477146, -2.549041, 0), App.Vector(2.479488, -2.615506, 0), App.Vector(2.499301, -2.712598, 0), App.Vector(2.530573, -2.805296, 0), App.Vector(2.574383, -2.892681, 0), App.Vector(2.630859, -2.972479, 0), App.Vector(2.696215, -3.045607, 0), App.Vector(2.774059, -3.107082, 0), App.Vector(2.859468, -3.160796, 0), App.Vector(2.952955, -3.202839, 0), App.Vector(3.050918, -3.234553, 0), App.Vector(3.153514, -3.252523, 0), App.Vector(3.223004, -3.255102, 0), App.Vector(3.258263, -3.25641, 0)], [4, 1, 1, 1, 1, 1, 1, 1, 1, 1, 1, 1, 4], [0, 1.005424448, 1.989358655, 2.955360095, 3.929531133, 4.905563448, 5.876582895, 6.856512386, 7.866279853, 8.892233794, 9.918561126, 10.94386622, 12], False, 3, [1, 1, 1, 1, 1, 1, 1, 1, 1, 1, 1, 1, 1, 1, 1], False),
    Part.BSplineCurve([App.Vector(2.65341, -2.032076, 0), App.Vector(2.639375, -2.050764, 0), App.Vector(2.611771, -2.087517, 0), App.Vector(2.575335, -2.144962, 0), App.Vector(2.544366, -2.203766, 0), App.Vector(2.520089, -2.264087, 0), App.Vector(2.499645, -2.325079, 0), App.Vector(2.485895, -2.387537, 0), App.Vector(2.477285, -2.45118, 0), App.Vector(2.476403, -2.49401, 0), App.Vector(2.475962, -2.51545, 0)], [4, 1, 1, 1, 1, 1, 1, 1, 4], [0, 1.068054152, 2.10047183, 3.106115577, 4.101338837, 5.06977816, 6.043150881, 7.020423561, 8], False, 3, [1, 1, 1, 1, 1, 1, 1, 1, 1, 1, 1], False),
    Part.BSplineCurve([App.Vector(3.173673, -1.60022, 0), App.Vector(3.140268, -1.624013, 0), App.Vector(3.076401, -1.669504, 0), App.Vector(2.987085, -1.737017, 0), App.Vector(2.907216, -1.798743, 0), App.Vector(2.837149, -1.855262, 0), App.Vector(2.776916, -1.906581, 0), App.Vector(2.72604, -1.952208, 0), App.Vector(2.685818, -1.993378, 0), App.Vector(2.663452, -2.020085, 0), App.Vector(2.65341, -2.032076, 0)], [4, 1, 1, 1, 1, 1, 1, 1, 4], [0, 1.452282411, 2.77665338, 3.964542531, 5.026858415, 5.96415736, 6.766646006, 7.446254459, 8], False, 3, [1, 1, 1, 1, 1, 1, 1, 1, 1, 1, 1], False),
    Part.BSplineCurve([App.Vector(3.746089, -1.09395, 0), App.Vector(3.731873, -1.112136, 0), App.Vector(3.70203, -1.150313, 0), App.Vector(3.650724, -1.207142, 0), App.Vector(3.59052, -1.26576, 0), App.Vector(3.523479, -1.328406, 0), App.Vector(3.447159, -1.392167, 0), App.Vector(3.363949, -1.460084, 0), App.Vector(3.271725, -1.529572, 0), App.Vector(3.207046, -1.576174, 0), App.Vector(3.173673, -1.60022, 0)], [4, 1, 1, 1, 1, 1, 1, 1, 4], [0, 0.722233717, 1.516239348, 2.393582979, 3.351407094, 4.387010283, 5.505090956, 6.712668013, 8], False, 3, [1, 1, 1, 1, 1, 1, 1, 1, 1, 1, 1], False),
    Part.BSplineCurve([App.Vector(3.859936, -0.782302, 0), App.Vector(3.858598, -0.808737, 0), App.Vector(3.85588, -0.862475, 0), App.Vector(3.8329, -0.941759, 0), App.Vector(3.796751, -1.02022, 0), App.Vector(3.763403, -1.068753, 0), App.Vector(3.746089, -1.09395, 0)], [4, 1, 1, 1, 4], [0, 0.938893495, 1.908633276, 2.914225137, 4], False, 3, [1, 1, 1, 1, 1, 1, 1], False),
    Part.BSplineCurve([App.Vector(3.237911, -0.244231, 0), App.Vector(3.265748, -0.245006, 0), App.Vector(3.320936, -0.246543, 0), App.Vector(3.402181, -0.261312, 0), App.Vector(3.481086, -0.284002, 0), App.Vector(3.556024, -0.316496, 0), App.Vector(3.625961, -0.355811, 0), App.Vector(3.68729, -0.403296, 0), App.Vector(3.740309, -0.45646, 0), App.Vector(3.783679, -0.515772, 0), App.Vector(3.816953, -0.579559, 0), App.Vector(3.842527, -0.645033, 0), App.Vector(3.856719, -0.713222, 0), App.Vector(3.858857, -0.759133, 0), App.Vector(3.859936, -0.782302, 0)], [4, 1, 1, 1, 1, 1, 1, 1, 1, 1, 1, 1, 4], [0, 1.095163259, 2.171163733, 3.241058638, 4.321873601, 5.38011039, 6.391990106, 7.366004449, 8.327778327, 9.272591725, 10.192022065, 11.087607919, 12], False, 3, [1, 1, 1, 1, 1, 1, 1, 1, 1, 1, 1, 1, 1, 1, 1], False),
    Part.BSplineCurve([App.Vector(2.540835, -0.773397, 0), App.Vector(2.565798, -0.73161, 0), App.Vector(2.613626, -0.651548, 0), App.Vector(2.693411, -0.543364, 0), App.Vector(2.776081, -0.451414, 0), App.Vector(2.86225, -0.376233, 0), App.Vector(2.951392, -0.317043, 0), App.Vector(3.044087, -0.275131, 0), App.Vector(3.140025, -0.248991, 0), App.Vector(3.205315, -0.245816, 0), App.Vector(3.237911, -0.244231, 0)], [4, 1, 1, 1, 1, 1, 1, 1, 4], [0, 1.272034388, 2.437168799, 3.508375237, 4.49857839, 5.41946034, 6.295179144, 7.148887113, 8], False, 3, [1, 1, 1, 1, 1, 1, 1, 1, 1, 1, 1], False),
], False)
sketch2.addConstraint([
    Sketcher.Constraint("Block", 1),
    Sketcher.Constraint("Block", 2),
    Sketcher.Constraint("Block", 3),
    Sketcher.Constraint("Block", 4),
    Sketcher.Constraint("Block", 5),
    Sketcher.Constraint("Block", 9),
    Sketcher.Constraint("Block", 10),
    Sketcher.Constraint("Block", 11),
    Sketcher.Constraint("Block", 12),
    Sketcher.Constraint("Block", 18),
    Sketcher.Constraint("Block", 19),
    Sketcher.Constraint("Block", 20),
    Sketcher.Constraint("Block", 21),
    Sketcher.Constraint("Block", 23),
    Sketcher.Constraint("Block", 24),
    Sketcher.Constraint("Block", 28),
    Sketcher.Constraint("Block", 29),
    Sketcher.Constraint("Block", 30),
    Sketcher.Constraint("Block", 31),
    Sketcher.Constraint("Block", 32),
    Sketcher.Constraint("Block", 33),
    Sketcher.Constraint("Block", 34),
    Sketcher.Constraint("Block", 36),
    Sketcher.Constraint("Block", 37),
    Sketcher.Constraint("Block", 38),
    Sketcher.Constraint("Block", 39),
    Sketcher.Constraint("Block", 40),
    Sketcher.Constraint("Block", 41),
    Sketcher.Constraint("Block", 42),
    Sketcher.Constraint("Block", 43),
    Sketcher.Constraint("Coincident", 0, 2, 1, 2),
    Sketcher.Constraint("Coincident", 5, 1, 6, 1),
    Sketcher.Constraint("Coincident", 6, 2, 7, 1),
    Sketcher.Constraint("Coincident", 7, 2, 8, 1),
    Sketcher.Constraint("Coincident", 8, 2, 9, 2),
    Sketcher.Constraint("Coincident", 12, 1, 0, 1),
    Sketcher.Constraint("Coincident", 13, 2, 14, 1),
    Sketcher.Constraint("Coincident", 14, 2, 15, 1),
    Sketcher.Constraint("Coincident", 15, 2, 16, 1),
    Sketcher.Constraint("Coincident", 16, 2, 17, 1),
    Sketcher.Constraint("Coincident", 17, 2, 18, 2),
    Sketcher.Constraint("Coincident", 21, 1, 13, 1),
    Sketcher.Constraint("Coincident", 22, 2, 23, 2),
    Sketcher.Constraint("Coincident", 24, 1, 25, 1),
    Sketcher.Constraint("Coincident", 25, 2, 26, 1),
    Sketcher.Constraint("Coincident", 26, 2, 22, 1),
    Sketcher.Constraint("Coincident", 27, 2, 28, 2),
    Sketcher.Constraint("Coincident", 34, 1, 35, 1),
    Sketcher.Constraint("Coincident", 35, 2, 36, 2),
    Sketcher.Constraint("Coincident", 43, 1, 27, 1),
    Sketcher.Constraint("Horizontal", 6),
    Sketcher.Constraint("Vertical", 7),
    Sketcher.Constraint("Horizontal", 8),
    Sketcher.Constraint("Horizontal", 13),
    Sketcher.Constraint("Vertical", 14),
    Sketcher.Constraint("Horizontal", 15),
    Sketcher.Constraint("Vertical", 16),
    Sketcher.Constraint("Horizontal", 17),
    Sketcher.Constraint("Horizontal", 22),
    Sketcher.Constraint("Vertical", 26),
    Sketcher.Constraint("PointOnObject", 14, 2, -1),
    Sketcher.Constraint("Vertical", 16, 2, 25, 2),
    Sketcher.Constraint("Equal", 8, 26),
    Sketcher.Constraint("DistanceX", 6, 2, 6, 1, 1.343269),
    Sketcher.Constraint("DistanceX", 13, 2, 13, 1, 0.622661),
    Sketcher.Constraint("DistanceX", 17, 1, 17, 2, 0.227058),
])
pocket1 = body.newObject("PartDesign::Pocket", "Pocket")
pocket1.Profile = sketch2
pocket1.Length = 0.254
pocket1.Reversed = True

doc.recompute()
